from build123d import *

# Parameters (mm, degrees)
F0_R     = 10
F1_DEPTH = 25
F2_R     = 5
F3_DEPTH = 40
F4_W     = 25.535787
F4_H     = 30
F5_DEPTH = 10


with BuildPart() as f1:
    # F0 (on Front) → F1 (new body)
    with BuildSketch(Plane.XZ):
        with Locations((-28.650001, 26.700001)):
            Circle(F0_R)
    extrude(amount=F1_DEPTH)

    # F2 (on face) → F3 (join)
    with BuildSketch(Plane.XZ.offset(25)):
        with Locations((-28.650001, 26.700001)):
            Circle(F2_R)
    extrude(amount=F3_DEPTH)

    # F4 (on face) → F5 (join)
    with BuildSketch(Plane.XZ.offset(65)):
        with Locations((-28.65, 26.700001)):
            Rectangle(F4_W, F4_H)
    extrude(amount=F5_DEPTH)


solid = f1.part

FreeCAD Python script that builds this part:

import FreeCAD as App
import Part
import Sketcher
from FreeCAD import Vector
Q = App.Units.Quantity

doc = App.newDocument("Part")
body = doc.addObject("PartDesign::Body", "Body")

# Sketch on XZ plane
sketch1 = doc.addObject("Sketcher::SketchObject", "Sketch")
body.addObject(sketch1)
sketch1.AttachmentSupport = (doc.XZ_Plane, [""])
sketch1.MapMode = "FlatFace"
sketch1.addGeometry(Part.Circle(Vector(-29, 27, 0), Vector(0, 0, 1), 10), False)
sketch1.addConstraint(Sketcher.Constraint("Diameter", 0, Q("20 mm")))
sketch1.addConstraint(Sketcher.Constraint("DistanceY", -1, 1, 0, 3, Q("26.700001 mm")))
sketch1.addConstraint(Sketcher.Constraint("DistanceX", 0, 3, -1, 1, Q("28.650001 mm")))
pad1 = doc.addObject("PartDesign::Pad", "Pad")
body.addObject(pad1)
pad1.Profile = sketch1
pad1.Length = 25

# Sketch on XZ plane
sketch2 = doc.addObject("Sketcher::SketchObject", "Sketch001")
body.addObject(sketch2)
sketch2.AttachmentSupport = (doc.XZ_Plane, [""])
sketch2.MapMode = "FlatFace"
sketch2.AttachmentOffset = App.Placement(Vector(0, 0, 25), App.Rotation())
sketch2.addGeometry(Part.Circle(Vector(-29, 27, 0), Vector(0, 0, 1), 5), False)
sketch2.addConstraint(Sketcher.Constraint("Diameter", 0, Q("10 mm")))
sketch2.addConstraint(Sketcher.Constraint("DistanceY", -1, 1, 0, 3, Q("26.700001 mm")))
sketch2.addConstraint(Sketcher.Constraint("DistanceX", 0, 3, -1, 1, Q("28.650001 mm")))
pad2 = doc.addObject("PartDesign::Pad", "Pad001")
body.addObject(pad2)
pad2.Profile = sketch2
pad2.Length = 40

# Sketch on XZ plane
sketch3 = doc.addObject("Sketcher::SketchObject", "Sketch002")
body.addObject(sketch3)
sketch3.AttachmentSupport = (doc.XZ_Plane, [""])
sketch3.MapMode = "FlatFace"
sketch3.AttachmentOffset = App.Placement(Vector(0, 0, 65), App.Rotation())
sketch3.addGeometry(Part.LineSegment(Vector(-41, 42, 0), Vector(-41, 12, 0)), False)
sketch3.addGeometry(Part.LineSegment(Vector(-41, 12, 0), Vector(-16, 12, 0)), False)
sketch3.addGeometry(Part.LineSegment(Vector(-16, 12, 0), Vector(-16, 42, 0)), False)
sketch3.addGeometry(Part.LineSegment(Vector(-16, 42, 0), Vector(-41, 42, 0)), False)
sketch3.addConstraint(Sketcher.Constraint("Coincident", 0, 2, 1, 1))
sketch3.addConstraint(Sketcher.Constraint("Coincident", 1, 2, 2, 1))
sketch3.addConstraint(Sketcher.Constraint("Coincident", 2, 2, 3, 1))
sketch3.addConstraint(Sketcher.Constraint("Coincident", 3, 2, 0, 1))
sketch3.addConstraint(Sketcher.Constraint("Vertical", 0))
sketch3.addConstraint(Sketcher.Constraint("Horizontal", 1))
sketch3.addConstraint(Sketcher.Constraint("Vertical", 2))
sketch3.addConstraint(Sketcher.Constraint("Horizontal", 3))
sketch3.addConstraint(Sketcher.Constraint("DistanceY", 0, 2, 0, 1, Q("30 mm")))
sketch3.addConstraint(Sketcher.Constraint("DistanceY", -1, 1, 0, 2, Q("11.700001 mm")))
sketch3.addConstraint(Sketcher.Constraint("DistanceX", 1, 1, 1, 2, Q("25.535787 mm")))
sketch3.addConstraint(Sketcher.Constraint("DistanceX", 0, 2, -1, 1, Q("41.417893 mm")))
pad3 = doc.addObject("PartDesign::Pad", "Pad002")
body.addObject(pad3)
pad3.Profile = sketch3
pad3.Length = 10

doc.recompute()
